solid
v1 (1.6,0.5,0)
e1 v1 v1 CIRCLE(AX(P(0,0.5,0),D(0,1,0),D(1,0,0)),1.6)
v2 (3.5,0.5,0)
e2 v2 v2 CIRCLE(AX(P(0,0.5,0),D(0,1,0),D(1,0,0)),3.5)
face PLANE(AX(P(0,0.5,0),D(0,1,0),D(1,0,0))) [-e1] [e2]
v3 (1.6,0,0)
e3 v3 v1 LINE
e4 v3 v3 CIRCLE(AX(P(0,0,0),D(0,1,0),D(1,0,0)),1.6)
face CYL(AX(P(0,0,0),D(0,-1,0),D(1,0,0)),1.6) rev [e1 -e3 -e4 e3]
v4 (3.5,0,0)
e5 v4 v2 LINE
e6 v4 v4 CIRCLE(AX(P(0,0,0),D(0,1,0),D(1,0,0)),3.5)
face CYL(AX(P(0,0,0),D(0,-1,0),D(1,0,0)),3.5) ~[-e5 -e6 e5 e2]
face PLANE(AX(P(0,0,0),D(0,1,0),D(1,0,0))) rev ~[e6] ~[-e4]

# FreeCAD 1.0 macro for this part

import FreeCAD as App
import Part
import Sketcher

V = App.Vector

doc = App.newDocument("Part")
params = doc.addObject("Spreadsheet::Sheet", "Params")
for row, (alias, value) in enumerate([
    ("sketch1_diameter", "7 mm"),
    ("sketch1_diameter2", "3.2 mm"),
    ("pad1_length", "0.5 mm"),
], start=1):
    params.set(f"A{row}", alias)
    params.set(f"B{row}", "=" + value)
    params.setAlias(f"B{row}", alias)

body = doc.addObject("PartDesign::Body", "Body")

sketch1 = body.newObject("Sketcher::SketchObject", "Sketch")
sketch1.AttachmentSupport = (doc.getObject("XZ_Plane"), [""])
sketch1.MapMode = "FlatFace"
sketch1.addGeometry([
    Part.Circle(V(0, 0, 0), V(0, 0, 1), 3.5),
    Part.Circle(V(0, 0, 0), V(0, 0, 1), 1.6),
], False)
sketch1.addConstraint([
    Sketcher.Constraint("Coincident", 0, 3, -1, 1),
    Sketcher.Constraint("Coincident", 1, 3, -1, 1),
    Sketcher.Constraint("Diameter", 0, 7.0),
    Sketcher.Constraint("Diameter", 1, 3.2),
])
sketch1.setExpression("Constraints[2]", "Params.sketch1_diameter")
sketch1.setExpression("Constraints[3]", "Params.sketch1_diameter2")
pad1 = body.newObject("PartDesign::Pad", "Pad")
pad1.Profile = sketch1
pad1.setExpression("Length", "Params.pad1_length")
pad1.Reversed = True

doc.recompute()
